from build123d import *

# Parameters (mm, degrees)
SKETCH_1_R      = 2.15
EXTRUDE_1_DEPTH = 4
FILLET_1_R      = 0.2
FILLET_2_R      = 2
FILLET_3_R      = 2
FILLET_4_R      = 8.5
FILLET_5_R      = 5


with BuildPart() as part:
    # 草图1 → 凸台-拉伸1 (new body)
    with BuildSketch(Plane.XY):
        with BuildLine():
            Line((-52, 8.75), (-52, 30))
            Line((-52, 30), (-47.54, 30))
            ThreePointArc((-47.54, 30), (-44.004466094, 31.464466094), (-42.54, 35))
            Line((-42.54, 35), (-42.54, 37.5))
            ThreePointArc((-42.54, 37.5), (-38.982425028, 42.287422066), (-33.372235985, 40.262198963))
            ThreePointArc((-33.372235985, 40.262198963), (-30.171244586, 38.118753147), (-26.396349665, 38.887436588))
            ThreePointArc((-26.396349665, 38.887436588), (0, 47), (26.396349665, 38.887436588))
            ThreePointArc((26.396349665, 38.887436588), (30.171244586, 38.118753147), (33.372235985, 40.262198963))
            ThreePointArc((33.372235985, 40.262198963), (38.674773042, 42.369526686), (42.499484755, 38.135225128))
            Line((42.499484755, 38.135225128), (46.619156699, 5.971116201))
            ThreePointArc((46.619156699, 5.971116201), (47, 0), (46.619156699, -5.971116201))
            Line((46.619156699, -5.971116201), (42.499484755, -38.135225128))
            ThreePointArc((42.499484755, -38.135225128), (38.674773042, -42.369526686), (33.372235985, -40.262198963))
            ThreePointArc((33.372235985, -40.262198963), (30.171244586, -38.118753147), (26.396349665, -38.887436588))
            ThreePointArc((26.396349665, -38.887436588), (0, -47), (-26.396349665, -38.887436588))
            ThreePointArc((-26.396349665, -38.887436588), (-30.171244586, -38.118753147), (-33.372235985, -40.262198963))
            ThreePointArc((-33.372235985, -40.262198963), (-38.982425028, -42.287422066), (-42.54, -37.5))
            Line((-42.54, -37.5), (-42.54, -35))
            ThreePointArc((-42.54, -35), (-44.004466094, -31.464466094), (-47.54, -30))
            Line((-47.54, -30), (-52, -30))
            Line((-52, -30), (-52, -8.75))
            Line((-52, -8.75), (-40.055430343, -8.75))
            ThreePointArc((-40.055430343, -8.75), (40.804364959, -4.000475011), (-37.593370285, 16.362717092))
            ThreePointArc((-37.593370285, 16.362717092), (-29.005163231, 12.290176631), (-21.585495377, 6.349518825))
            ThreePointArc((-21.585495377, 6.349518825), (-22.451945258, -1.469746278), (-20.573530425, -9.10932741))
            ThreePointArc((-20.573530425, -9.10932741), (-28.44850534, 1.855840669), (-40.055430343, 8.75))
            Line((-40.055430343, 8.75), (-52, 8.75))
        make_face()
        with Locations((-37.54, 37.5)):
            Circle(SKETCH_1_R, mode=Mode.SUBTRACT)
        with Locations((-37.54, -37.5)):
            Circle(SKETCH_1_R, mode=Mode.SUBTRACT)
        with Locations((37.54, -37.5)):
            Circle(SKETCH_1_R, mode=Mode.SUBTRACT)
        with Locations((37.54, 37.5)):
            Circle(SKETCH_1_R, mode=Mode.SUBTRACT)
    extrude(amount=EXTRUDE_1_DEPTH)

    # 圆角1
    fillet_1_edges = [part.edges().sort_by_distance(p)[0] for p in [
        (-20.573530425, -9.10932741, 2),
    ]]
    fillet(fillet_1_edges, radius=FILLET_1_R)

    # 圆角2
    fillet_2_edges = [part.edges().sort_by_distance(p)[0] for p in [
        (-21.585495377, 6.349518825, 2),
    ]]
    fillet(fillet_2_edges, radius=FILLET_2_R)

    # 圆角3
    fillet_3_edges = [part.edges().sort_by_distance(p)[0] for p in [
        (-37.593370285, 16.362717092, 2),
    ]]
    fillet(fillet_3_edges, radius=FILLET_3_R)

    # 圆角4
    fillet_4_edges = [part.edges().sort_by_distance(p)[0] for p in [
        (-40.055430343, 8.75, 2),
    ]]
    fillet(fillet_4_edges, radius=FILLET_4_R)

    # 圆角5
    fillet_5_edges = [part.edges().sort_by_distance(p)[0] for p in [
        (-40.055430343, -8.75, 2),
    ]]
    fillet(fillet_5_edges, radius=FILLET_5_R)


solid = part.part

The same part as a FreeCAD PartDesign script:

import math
import FreeCAD as App
import Part
import Sketcher
from FreeCAD import Vector
Q = App.Units.Quantity


def edges_at(feature, points):
    """Names of the edges that pass closest to the given points."""
    edges = feature.Shape.Edges
    near = lambda p: min(range(len(edges)), key=lambda i: edges[i].distToShape(Part.Vertex(*p))[0])
    return sorted({f"Edge{near(p) + 1}" for p in points})

doc = App.newDocument("Part")
body = doc.addObject("PartDesign::Body", "Body")

sketch1 = body.newObject("Sketcher::SketchObject", "Sketch")
sketch1.AttachmentSupport = (doc.getObject("XY_Plane"), [""])
sketch1.MapMode = "FlatFace"
sketch1.addGeometry([
    Part.LineSegment(Vector(-52, 30, 0), Vector(-52, 8.8, 0)),
    Part.LineSegment(Vector(-52, 8.8, 0), Vector(-40.1, 8.8, 0)),
    Part.ArcOfCircle(Part.Circle(Vector(-50.7, -22.5, 0), Vector(0, 0, 1), 33), math.radians(24), math.radians(71)),
    Part.ArcOfCircle(Part.Circle(Vector(0, 0, 0), Vector(0, 0, 1), 22.5), math.radians(164), math.radians(204)),
    Part.ArcOfCircle(Part.Circle(Vector(-50.7, -22.5, 0), Vector(0, 0, 1), 41), math.radians(45), math.radians(71)),
    Part.ArcOfCircle(Part.Circle(Vector(0, 0, 0), Vector(0, 0, 1), 41), math.radians(-168), math.radians(156)),
    Part.LineSegment(Vector(-40.1, -8.8, 0), Vector(-52, -8.8, 0)),
    Part.LineSegment(Vector(-52, -8.8, 0), Vector(-52, -30, 0)),
    Part.LineSegment(Vector(-52, -30, 0), Vector(-47.5, -30, 0)),
    Part.ArcOfCircle(Part.Circle(Vector(-47.5, -35, 0), Vector(0, 0, 1), 5), math.radians(0), math.radians(90)),
    Part.LineSegment(Vector(-42.5, -35, 0), Vector(-42.5, -37.5, 0)),
    Part.ArcOfCircle(Part.Circle(Vector(-37.5, -37.5, 0), Vector(0, 0, 1), 5), math.radians(180), math.radians(326)),
    Part.ArcOfCircle(Part.Circle(Vector(-29.2, -43, 0), Vector(0, 0, 1), 5), math.radians(56), math.radians(146)),
    Part.ArcOfCircle(Part.Circle(Vector(0, 0, 0), Vector(0, 0, 1), 47), math.radians(-124), math.radians(-56)),
    Part.ArcOfCircle(Part.Circle(Vector(29.2, -43, 0), Vector(0, 0, 1), 5), math.radians(34), math.radians(124)),
    Part.ArcOfCircle(Part.Circle(Vector(37.5, -37.5, 0), Vector(0, 0, 1), 5), math.radians(-146), math.radians(-7)),
    Part.LineSegment(Vector(42.5, -38.1, 0), Vector(46.6, -6, 0)),
    Part.ArcOfCircle(Part.Circle(Vector(0, 0, 0), Vector(0, 0, 1), 47), math.radians(-7.3), math.radians(7.3)),
    Part.LineSegment(Vector(46.6, 6, 0), Vector(42.5, 38.1, 0)),
    Part.ArcOfCircle(Part.Circle(Vector(37.5, 37.5, 0), Vector(0, 0, 1), 5), math.radians(7), math.radians(146)),
    Part.ArcOfCircle(Part.Circle(Vector(29.2, 43, 0), Vector(0, 0, 1), 5), math.radians(-124), math.radians(-34)),
    Part.ArcOfCircle(Part.Circle(Vector(0, 0, 0), Vector(0, 0, 1), 47), math.radians(56), math.radians(124)),
    Part.ArcOfCircle(Part.Circle(Vector(-29.2, 43, 0), Vector(0, 0, 1), 5), math.radians(-146), math.radians(-56)),
    Part.ArcOfCircle(Part.Circle(Vector(-37.5, 37.5, 0), Vector(0, 0, 1), 5), math.radians(34), math.radians(180)),
    Part.LineSegment(Vector(-42.5, 37.5, 0), Vector(-42.5, 35, 0)),
    Part.ArcOfCircle(Part.Circle(Vector(-47.5, 35, 0), Vector(0, 0, 1), 5), math.radians(-90), math.radians(0)),
    Part.LineSegment(Vector(-47.5, 30, 0), Vector(-52, 30, 0)),
    Part.Circle(Vector(37.5, -37.5, 0), Vector(0, 0, 1), 2.1),
    Part.Circle(Vector(-37.5, -37.5, 0), Vector(0, 0, 1), 2.1),
    Part.Circle(Vector(37.5, 37.5, 0), Vector(0, 0, 1), 2.1),
    Part.Circle(Vector(-37.5, 37.5, 0), Vector(0, 0, 1), 2.1),
], False)
sketch1.addConstraint([
    Sketcher.Constraint("Coincident", 0, 2, 1, 1),
    Sketcher.Constraint("Coincident", 1, 2, 2, 2),
    Sketcher.Constraint("Tangent", 2, 1, 3, 2),
    Sketcher.Constraint("Coincident", 3, 1, 4, 1),
    Sketcher.Constraint("Coincident", 4, 2, 5, 2),
    Sketcher.Constraint("Coincident", 5, 1, 6, 1),
    Sketcher.Constraint("Coincident", 6, 2, 7, 1),
    Sketcher.Constraint("Coincident", 7, 2, 8, 1),
    Sketcher.Constraint("Tangent", 8, 2, 9, 2),
    Sketcher.Constraint("Tangent", 9, 1, 10, 1),
    Sketcher.Constraint("Tangent", 10, 2, 11, 1),
    Sketcher.Constraint("Tangent", 11, 2, 12, 2),
    Sketcher.Constraint("Tangent", 12, 1, 13, 1),
    Sketcher.Constraint("Tangent", 13, 2, 14, 2),
    Sketcher.Constraint("Tangent", 14, 1, 15, 1),
    Sketcher.Constraint("Tangent", 15, 2, 16, 1),
    Sketcher.Constraint("Tangent", 16, 2, 17, 1),
    Sketcher.Constraint("Tangent", 17, 2, 18, 1),
    Sketcher.Constraint("Tangent", 18, 2, 19, 1),
    Sketcher.Constraint("Tangent", 19, 2, 20, 2),
    Sketcher.Constraint("Tangent", 20, 1, 21, 1),
    Sketcher.Constraint("Tangent", 21, 2, 22, 2),
    Sketcher.Constraint("Tangent", 22, 1, 23, 1),
    Sketcher.Constraint("Tangent", 23, 2, 24, 1),
    Sketcher.Constraint("Tangent", 24, 2, 25, 2),
    Sketcher.Constraint("Tangent", 25, 1, 26, 1),
    Sketcher.Constraint("Coincident", 26, 2, 0, 1),
    Sketcher.Constraint("Vertical", 0),
    Sketcher.Constraint("Horizontal", 1),
    Sketcher.Constraint("Horizontal", 6),
    Sketcher.Constraint("Vertical", 7),
    Sketcher.Constraint("Horizontal", 8),
    Sketcher.Constraint("Vertical", 10),
    Sketcher.Constraint("Vertical", 24),
    Sketcher.Constraint("Horizontal", 26),
    Sketcher.Constraint("Coincident", 3, 3, -1, 1),
    Sketcher.Constraint("Coincident", 5, 3, -1, 1),
    Sketcher.Constraint("Coincident", 13, 3, -1, 1),
    Sketcher.Constraint("Coincident", 17, 3, -1, 1),
    Sketcher.Constraint("Coincident", 21, 3, -1, 1),
    Sketcher.Constraint("Coincident", 4, 3, 2, 3),
    Sketcher.Constraint("Coincident", 27, 3, 15, 3),
    Sketcher.Constraint("Coincident", 28, 3, 11, 3),
    Sketcher.Constraint("Coincident", 29, 3, 19, 3),
    Sketcher.Constraint("Coincident", 30, 3, 23, 3),
    Sketcher.Constraint("Equal", 4, 5),
    Sketcher.Constraint("Equal", 9, 11),
    Sketcher.Constraint("Equal", 11, 12),
    Sketcher.Constraint("Equal", 12, 14),
    Sketcher.Constraint("Equal", 14, 15),
    Sketcher.Constraint("Equal", 13, 17),
    Sketcher.Constraint("Equal", 15, 19),
    Sketcher.Constraint("Equal", 19, 20),
    Sketcher.Constraint("Equal", 17, 21),
    Sketcher.Constraint("Equal", 20, 22),
    Sketcher.Constraint("Equal", 22, 23),
    Sketcher.Constraint("Equal", 23, 25),
    Sketcher.Constraint("Equal", 27, 28),
    Sketcher.Constraint("Equal", 28, 29),
    Sketcher.Constraint("Equal", 29, 30),
    Sketcher.Constraint("Symmetric", 11, 3, 19, 3, -1, 1),
    Sketcher.Constraint("Symmetric", 15, 3, 23, 3, -1, 1),
    Sketcher.Constraint("Symmetric", 11, 3, 15, 3, -2),
    Sketcher.Constraint("Symmetric", 1, 2, 5, 1, -1),
    Sketcher.Constraint("Symmetric", 7, 2, 26, 2, -1),
    Sketcher.Constraint("Radius", 2, Q("33 mm")),
    Sketcher.Constraint("Radius", 4, Q("41 mm")),
    Sketcher.Constraint("Radius", 9, Q("5 mm")),
    Sketcher.Constraint("Radius", 13, Q("47 mm")),
    Sketcher.Constraint("Diameter", 27, Q("4.3 mm")),
    Sketcher.Constraint("Radius", 3, Q("22.5 mm")),
    Sketcher.Constraint("DistanceY", 10, 2, 10, 1, Q("2.5 mm")),
    Sketcher.Constraint("DistanceY", 9, 3, -1, 1, Q("35 mm")),
    Sketcher.Constraint("DistanceX", 0, 2, -1, 1, Q("52 mm")),
    Sketcher.Constraint("DistanceX", 8, 1, 8, 2, Q("4.46 mm")),
    Sketcher.Constraint("DistanceY", 0, 2, 0, 1, Q("21.25 mm")),
])
pad1 = body.newObject("PartDesign::Pad", "Pad")
pad1.Profile = sketch1
pad1.Length = 4
doc.recompute()

fillet = body.newObject("PartDesign::Fillet", "Fillet")
fillet.Base = (pad1, edges_at(pad1, [(-20.574, -9.109, 2)]))
fillet.Radius = 0.2
doc.recompute()

fillet2 = body.newObject("PartDesign::Fillet", "Fillet001")
fillet2.Base = (fillet, edges_at(fillet, [(-21.585, 6.35, 2)]))
fillet2.Radius = 2
doc.recompute()

fillet3 = body.newObject("PartDesign::Fillet", "Fillet002")
fillet3.Base = (fillet2, edges_at(fillet2, [(-37.593, 16.363, 2)]))
fillet3.Radius = 2
doc.recompute()

fillet4 = body.newObject("PartDesign::Fillet", "Fillet003")
fillet4.Base = (fillet3, edges_at(fillet3, [(-40.055, 8.75, 2)]))
fillet4.Radius = 8.5
doc.recompute()

fillet5 = body.newObject("PartDesign::Fillet", "Fillet004")
fillet5.Base = (fillet4, edges_at(fillet4, [(-40.055, -8.75, 2)]))
fillet5.Radius = 5

doc.recompute()
